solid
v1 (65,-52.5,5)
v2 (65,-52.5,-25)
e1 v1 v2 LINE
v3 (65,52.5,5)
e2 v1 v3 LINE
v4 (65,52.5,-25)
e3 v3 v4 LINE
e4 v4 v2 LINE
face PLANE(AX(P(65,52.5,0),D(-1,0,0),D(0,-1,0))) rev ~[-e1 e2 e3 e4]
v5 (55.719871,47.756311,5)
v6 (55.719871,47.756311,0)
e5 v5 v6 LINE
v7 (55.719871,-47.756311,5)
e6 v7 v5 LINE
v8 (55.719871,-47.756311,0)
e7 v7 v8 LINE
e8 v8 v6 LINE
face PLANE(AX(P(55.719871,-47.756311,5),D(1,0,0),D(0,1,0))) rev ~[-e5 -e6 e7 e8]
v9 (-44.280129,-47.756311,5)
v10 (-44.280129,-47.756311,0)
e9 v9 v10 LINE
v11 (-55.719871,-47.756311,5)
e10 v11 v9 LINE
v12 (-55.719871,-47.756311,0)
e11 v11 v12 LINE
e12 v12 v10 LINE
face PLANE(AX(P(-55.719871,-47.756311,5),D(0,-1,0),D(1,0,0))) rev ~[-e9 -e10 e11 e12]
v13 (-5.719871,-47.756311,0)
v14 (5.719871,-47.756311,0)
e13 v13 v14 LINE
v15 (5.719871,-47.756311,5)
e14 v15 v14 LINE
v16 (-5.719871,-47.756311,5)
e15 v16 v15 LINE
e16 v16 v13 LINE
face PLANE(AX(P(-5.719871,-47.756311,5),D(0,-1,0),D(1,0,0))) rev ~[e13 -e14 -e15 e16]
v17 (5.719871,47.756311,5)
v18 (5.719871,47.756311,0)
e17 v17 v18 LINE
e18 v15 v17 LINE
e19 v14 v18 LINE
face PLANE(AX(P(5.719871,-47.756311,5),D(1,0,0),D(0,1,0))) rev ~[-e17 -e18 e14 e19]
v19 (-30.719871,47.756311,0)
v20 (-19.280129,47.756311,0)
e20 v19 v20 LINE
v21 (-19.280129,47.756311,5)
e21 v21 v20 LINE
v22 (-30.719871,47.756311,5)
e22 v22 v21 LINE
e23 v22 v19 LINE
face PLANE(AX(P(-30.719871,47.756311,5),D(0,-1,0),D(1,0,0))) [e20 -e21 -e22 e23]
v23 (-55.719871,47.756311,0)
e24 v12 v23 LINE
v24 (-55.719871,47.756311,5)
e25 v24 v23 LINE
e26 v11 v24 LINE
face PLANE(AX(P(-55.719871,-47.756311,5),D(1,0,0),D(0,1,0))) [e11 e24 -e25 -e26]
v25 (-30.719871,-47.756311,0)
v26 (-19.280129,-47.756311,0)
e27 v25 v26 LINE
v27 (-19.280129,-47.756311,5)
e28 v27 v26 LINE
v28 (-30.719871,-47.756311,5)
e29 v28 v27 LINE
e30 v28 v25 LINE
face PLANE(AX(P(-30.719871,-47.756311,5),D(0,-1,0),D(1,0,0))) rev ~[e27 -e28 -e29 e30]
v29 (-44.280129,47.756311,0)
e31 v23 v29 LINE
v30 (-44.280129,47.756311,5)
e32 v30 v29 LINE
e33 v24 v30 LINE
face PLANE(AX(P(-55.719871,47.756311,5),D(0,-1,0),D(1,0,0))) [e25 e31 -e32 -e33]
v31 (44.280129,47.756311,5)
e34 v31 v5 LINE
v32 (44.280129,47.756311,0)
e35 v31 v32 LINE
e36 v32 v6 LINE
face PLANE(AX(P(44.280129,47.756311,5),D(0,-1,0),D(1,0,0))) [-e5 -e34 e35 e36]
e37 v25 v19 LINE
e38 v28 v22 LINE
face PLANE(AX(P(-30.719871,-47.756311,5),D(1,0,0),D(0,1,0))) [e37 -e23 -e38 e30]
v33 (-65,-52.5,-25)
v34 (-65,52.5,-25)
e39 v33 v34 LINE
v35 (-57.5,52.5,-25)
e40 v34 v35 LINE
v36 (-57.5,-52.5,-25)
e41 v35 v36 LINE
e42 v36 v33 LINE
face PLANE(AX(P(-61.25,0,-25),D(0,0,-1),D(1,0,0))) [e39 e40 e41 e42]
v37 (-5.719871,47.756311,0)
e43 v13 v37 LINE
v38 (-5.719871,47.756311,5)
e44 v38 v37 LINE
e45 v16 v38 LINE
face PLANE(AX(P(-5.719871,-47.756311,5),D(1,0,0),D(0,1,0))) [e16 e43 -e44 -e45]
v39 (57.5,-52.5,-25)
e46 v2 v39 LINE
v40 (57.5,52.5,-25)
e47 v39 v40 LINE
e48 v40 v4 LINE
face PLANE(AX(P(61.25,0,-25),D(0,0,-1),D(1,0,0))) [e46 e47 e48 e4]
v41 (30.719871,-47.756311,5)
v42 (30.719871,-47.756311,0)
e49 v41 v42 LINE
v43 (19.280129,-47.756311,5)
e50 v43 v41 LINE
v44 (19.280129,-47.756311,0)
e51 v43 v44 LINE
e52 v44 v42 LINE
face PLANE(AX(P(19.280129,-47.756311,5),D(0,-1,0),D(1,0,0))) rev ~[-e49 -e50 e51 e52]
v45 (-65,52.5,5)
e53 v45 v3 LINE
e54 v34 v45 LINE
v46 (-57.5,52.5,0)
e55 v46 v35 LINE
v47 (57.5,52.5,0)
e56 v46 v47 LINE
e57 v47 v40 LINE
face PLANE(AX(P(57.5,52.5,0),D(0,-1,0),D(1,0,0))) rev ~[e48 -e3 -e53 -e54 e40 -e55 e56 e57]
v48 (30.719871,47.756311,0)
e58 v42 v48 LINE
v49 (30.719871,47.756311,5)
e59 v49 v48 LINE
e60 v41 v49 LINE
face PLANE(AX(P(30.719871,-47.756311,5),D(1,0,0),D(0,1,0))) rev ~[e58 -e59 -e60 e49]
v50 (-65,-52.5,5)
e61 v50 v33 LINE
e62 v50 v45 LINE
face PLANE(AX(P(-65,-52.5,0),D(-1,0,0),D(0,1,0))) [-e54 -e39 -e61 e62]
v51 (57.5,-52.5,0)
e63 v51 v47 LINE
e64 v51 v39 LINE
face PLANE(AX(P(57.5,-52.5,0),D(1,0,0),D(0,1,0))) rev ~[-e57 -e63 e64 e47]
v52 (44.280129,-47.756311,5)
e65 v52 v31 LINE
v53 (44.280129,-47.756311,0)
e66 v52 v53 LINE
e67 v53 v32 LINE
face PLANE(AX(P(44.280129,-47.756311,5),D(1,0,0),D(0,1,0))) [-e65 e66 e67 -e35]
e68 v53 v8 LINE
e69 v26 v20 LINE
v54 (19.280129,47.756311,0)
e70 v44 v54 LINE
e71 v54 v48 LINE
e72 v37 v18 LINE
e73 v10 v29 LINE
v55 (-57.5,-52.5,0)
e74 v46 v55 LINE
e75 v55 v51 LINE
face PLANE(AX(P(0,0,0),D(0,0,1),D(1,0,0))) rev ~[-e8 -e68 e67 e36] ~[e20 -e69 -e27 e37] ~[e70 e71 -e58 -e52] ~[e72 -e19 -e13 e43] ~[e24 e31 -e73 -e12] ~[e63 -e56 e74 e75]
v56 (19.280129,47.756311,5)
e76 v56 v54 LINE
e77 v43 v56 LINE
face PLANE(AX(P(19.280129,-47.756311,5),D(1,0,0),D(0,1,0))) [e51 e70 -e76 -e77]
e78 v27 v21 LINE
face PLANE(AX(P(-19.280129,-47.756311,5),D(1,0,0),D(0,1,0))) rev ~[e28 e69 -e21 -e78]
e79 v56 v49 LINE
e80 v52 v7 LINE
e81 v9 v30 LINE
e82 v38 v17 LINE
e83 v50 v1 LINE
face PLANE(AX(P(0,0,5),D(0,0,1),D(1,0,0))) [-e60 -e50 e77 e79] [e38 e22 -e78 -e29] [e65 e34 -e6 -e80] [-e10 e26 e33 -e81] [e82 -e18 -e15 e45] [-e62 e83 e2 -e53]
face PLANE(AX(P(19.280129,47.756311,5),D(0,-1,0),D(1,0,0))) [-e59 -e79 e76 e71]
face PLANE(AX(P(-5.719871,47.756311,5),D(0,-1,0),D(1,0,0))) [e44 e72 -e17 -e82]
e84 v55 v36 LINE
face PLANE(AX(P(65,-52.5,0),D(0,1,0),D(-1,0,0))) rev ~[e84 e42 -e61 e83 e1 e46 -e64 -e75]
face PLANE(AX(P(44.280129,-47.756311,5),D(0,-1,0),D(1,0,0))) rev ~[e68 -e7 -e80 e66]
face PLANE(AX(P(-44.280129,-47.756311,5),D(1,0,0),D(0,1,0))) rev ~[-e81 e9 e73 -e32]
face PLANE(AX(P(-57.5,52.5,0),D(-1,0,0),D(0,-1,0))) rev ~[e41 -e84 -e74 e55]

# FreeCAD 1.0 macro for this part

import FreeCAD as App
import Part
import Sketcher
from FreeCAD import Vector
Q = App.Units.Quantity


def add_polygon(sketch, points):
    """Adds a closed chain of lines whose ends are joined by coincident constraints."""
    first, n = sketch.GeometryCount, len(points)
    for a, b in zip(points, points[1:] + points[:1]):
        sketch.addGeometry(Part.LineSegment(App.Vector(*a, 0), App.Vector(*b, 0)), False)
    for i in range(n):
        sketch.addConstraint(Sketcher.Constraint("Coincident", first + i, 2, first + (i + 1) % n, 1))

doc = App.newDocument("Part")
body = doc.addObject("PartDesign::Body", "Body")

# Sketch on XY plane
sketch1 = doc.addObject("Sketcher::SketchObject", "Sketch")
body.addObject(sketch1)
sketch1.AttachmentSupport = (doc.XY_Plane, [""])
sketch1.MapMode = "FlatFace"
add_polygon(sketch1, [(-65, 52.5), (-65, -52.5), (65, -52.5), (65, 52.5)])  # lines 0-3
sketch1.addConstraint([
    Sketcher.Constraint("Vertical", 0),
    Sketcher.Constraint("Horizontal", 1),
    Sketcher.Constraint("Vertical", 2),
    Sketcher.Constraint("Horizontal", 3),
    Sketcher.Constraint("Symmetric", 0, 2, 2, 2, -1, 1),
    Sketcher.Constraint("DistanceX", 1, 1, 1, 2, Q("130 mm")),
    Sketcher.Constraint("DistanceY", 0, 2, 0, 1, Q("105 mm")),
])
pad1 = doc.addObject("PartDesign::Pad", "Pad")
body.addObject(pad1)
pad1.Profile = sketch1
pad1.Length = 5

# Sketch on XY plane
sketch2 = doc.addObject("Sketcher::SketchObject", "Sketch001")
body.addObject(sketch2)
sketch2.AttachmentSupport = (doc.XY_Plane, [""])
sketch2.MapMode = "FlatFace"
add_polygon(sketch2, [(57.5, 52.5), (65, 52.5), (65, -52.5), (57.5, -52.5)])  # lines 0-3
add_polygon(sketch2, [(-57.5, 52.5), (-57.5, -52.5), (-65, -52.5), (-65, 52.5)])  # lines 4-7
sketch2.addConstraint([
    Sketcher.Constraint("Horizontal", 0),
    Sketcher.Constraint("Vertical", 1),
    Sketcher.Constraint("Horizontal", 2),
    Sketcher.Constraint("Vertical", 3),
    Sketcher.Constraint("Vertical", 4),
    Sketcher.Constraint("Horizontal", 5),
    Sketcher.Constraint("Vertical", 6),
    Sketcher.Constraint("Horizontal", 7),
    Sketcher.Constraint("Symmetric", 3, 2, 4, 2, -1, 1),
    Sketcher.Constraint("Symmetric", 1, 2, 6, 2, -1, 1),
    Sketcher.Constraint("Horizontal", 2, 2, 4, 2),
    Sketcher.Constraint("DistanceY", 1, 2, 1, 1, Q("105 mm")),
    Sketcher.Constraint("DistanceX", 0, 1, 0, 2, Q("7.5 mm")),
    Sketcher.Constraint("DistanceX", -1, 1, 0, 2, Q("65 mm")),
])
pad2 = doc.addObject("PartDesign::Pad", "Pad001")
body.addObject(pad2)
pad2.Profile = sketch2
pad2.Length = 25
pad2.Reversed = True

# Sketch on XY plane
sketch3 = doc.addObject("Sketcher::SketchObject", "Sketch002")
body.addObject(sketch3)
sketch3.AttachmentSupport = (doc.XY_Plane, [""])
sketch3.MapMode = "FlatFace"
sketch3.AttachmentOffset = App.Placement(Vector(0, 0, 5), App.Rotation())
add_polygon(sketch3, [(-5.719871, 47.756311), (-5.719871, -47.756311), (5.719871, -47.756311), (5.719871, 47.756311)])  # lines 0-3
add_polygon(sketch3, [(19.280129, 47.756311), (19.280129, -47.756311), (30.719871, -47.756311), (30.719871, 47.756311)])  # lines 4-7
add_polygon(sketch3, [(44.280129, 47.756311), (44.280129, -47.756311), (55.719871, -47.756311), (55.719871, 47.756311)])  # lines 8-11
add_polygon(sketch3, [(-30.719871, 47.756311), (-30.719871, -47.756311), (-19.280129, -47.756311), (-19.280129, 47.756311)])  # lines 12-15
add_polygon(sketch3, [(-55.719871, 47.756311), (-55.719871, -47.756311), (-44.280129, -47.756311), (-44.280129, 47.756311)])  # lines 16-19
sketch3.addConstraint([
    Sketcher.Constraint("Vertical", 0),
    Sketcher.Constraint("Horizontal", 1),
    Sketcher.Constraint("Vertical", 2),
    Sketcher.Constraint("Horizontal", 3),
    Sketcher.Constraint("Vertical", 4),
    Sketcher.Constraint("Horizontal", 5),
    Sketcher.Constraint("Vertical", 6),
    Sketcher.Constraint("Horizontal", 7),
    Sketcher.Constraint("Vertical", 8),
    Sketcher.Constraint("Horizontal", 9),
    Sketcher.Constraint("Vertical", 10),
    Sketcher.Constraint("Horizontal", 11),
    Sketcher.Constraint("Vertical", 12),
    Sketcher.Constraint("Horizontal", 13),
    Sketcher.Constraint("Vertical", 14),
    Sketcher.Constraint("Horizontal", 15),
    Sketcher.Constraint("Vertical", 16),
    Sketcher.Constraint("Horizontal", 17),
    Sketcher.Constraint("Vertical", 18),
    Sketcher.Constraint("Horizontal", 19),
    Sketcher.Constraint("Symmetric", 0, 2, 2, 2, -1, 1),
    Sketcher.Constraint("Symmetric", 6, 2, 12, 2, -1, 1),
    Sketcher.Constraint("Symmetric", 4, 2, 14, 2, -1, 1),
    Sketcher.Constraint("Symmetric", 10, 2, 16, 2, -1, 1),
    Sketcher.Constraint("Symmetric", 8, 2, 18, 2, -1, 1),
    Sketcher.Constraint("Horizontal", 1, 2, 4, 2),
    Sketcher.Constraint("Horizontal", 3, 2, 6, 2),
    Sketcher.Constraint("Horizontal", 5, 2, 8, 2),
    Sketcher.Constraint("Horizontal", 7, 2, 10, 2),
    Sketcher.Constraint("Equal", 3, 5),
    Sketcher.Constraint("Equal", 7, 9),
    Sketcher.Constraint("DistanceX", 0, 2, 4, 2, Q("25 mm")),
    Sketcher.Constraint("DistanceX", 4, 2, 8, 2, Q("25 mm")),
    Sketcher.Constraint("DistanceX", 9, 1, 9, 2, Q("11.439742 mm")),
    Sketcher.Constraint("DistanceY", 0, 2, 0, 1, Q("95.512622 mm")),
])
pocket1 = doc.addObject("PartDesign::Pocket", "Pocket")
body.addObject(pocket1)
pocket1.Profile = sketch3
pocket1.Length = 25

doc.recompute()
